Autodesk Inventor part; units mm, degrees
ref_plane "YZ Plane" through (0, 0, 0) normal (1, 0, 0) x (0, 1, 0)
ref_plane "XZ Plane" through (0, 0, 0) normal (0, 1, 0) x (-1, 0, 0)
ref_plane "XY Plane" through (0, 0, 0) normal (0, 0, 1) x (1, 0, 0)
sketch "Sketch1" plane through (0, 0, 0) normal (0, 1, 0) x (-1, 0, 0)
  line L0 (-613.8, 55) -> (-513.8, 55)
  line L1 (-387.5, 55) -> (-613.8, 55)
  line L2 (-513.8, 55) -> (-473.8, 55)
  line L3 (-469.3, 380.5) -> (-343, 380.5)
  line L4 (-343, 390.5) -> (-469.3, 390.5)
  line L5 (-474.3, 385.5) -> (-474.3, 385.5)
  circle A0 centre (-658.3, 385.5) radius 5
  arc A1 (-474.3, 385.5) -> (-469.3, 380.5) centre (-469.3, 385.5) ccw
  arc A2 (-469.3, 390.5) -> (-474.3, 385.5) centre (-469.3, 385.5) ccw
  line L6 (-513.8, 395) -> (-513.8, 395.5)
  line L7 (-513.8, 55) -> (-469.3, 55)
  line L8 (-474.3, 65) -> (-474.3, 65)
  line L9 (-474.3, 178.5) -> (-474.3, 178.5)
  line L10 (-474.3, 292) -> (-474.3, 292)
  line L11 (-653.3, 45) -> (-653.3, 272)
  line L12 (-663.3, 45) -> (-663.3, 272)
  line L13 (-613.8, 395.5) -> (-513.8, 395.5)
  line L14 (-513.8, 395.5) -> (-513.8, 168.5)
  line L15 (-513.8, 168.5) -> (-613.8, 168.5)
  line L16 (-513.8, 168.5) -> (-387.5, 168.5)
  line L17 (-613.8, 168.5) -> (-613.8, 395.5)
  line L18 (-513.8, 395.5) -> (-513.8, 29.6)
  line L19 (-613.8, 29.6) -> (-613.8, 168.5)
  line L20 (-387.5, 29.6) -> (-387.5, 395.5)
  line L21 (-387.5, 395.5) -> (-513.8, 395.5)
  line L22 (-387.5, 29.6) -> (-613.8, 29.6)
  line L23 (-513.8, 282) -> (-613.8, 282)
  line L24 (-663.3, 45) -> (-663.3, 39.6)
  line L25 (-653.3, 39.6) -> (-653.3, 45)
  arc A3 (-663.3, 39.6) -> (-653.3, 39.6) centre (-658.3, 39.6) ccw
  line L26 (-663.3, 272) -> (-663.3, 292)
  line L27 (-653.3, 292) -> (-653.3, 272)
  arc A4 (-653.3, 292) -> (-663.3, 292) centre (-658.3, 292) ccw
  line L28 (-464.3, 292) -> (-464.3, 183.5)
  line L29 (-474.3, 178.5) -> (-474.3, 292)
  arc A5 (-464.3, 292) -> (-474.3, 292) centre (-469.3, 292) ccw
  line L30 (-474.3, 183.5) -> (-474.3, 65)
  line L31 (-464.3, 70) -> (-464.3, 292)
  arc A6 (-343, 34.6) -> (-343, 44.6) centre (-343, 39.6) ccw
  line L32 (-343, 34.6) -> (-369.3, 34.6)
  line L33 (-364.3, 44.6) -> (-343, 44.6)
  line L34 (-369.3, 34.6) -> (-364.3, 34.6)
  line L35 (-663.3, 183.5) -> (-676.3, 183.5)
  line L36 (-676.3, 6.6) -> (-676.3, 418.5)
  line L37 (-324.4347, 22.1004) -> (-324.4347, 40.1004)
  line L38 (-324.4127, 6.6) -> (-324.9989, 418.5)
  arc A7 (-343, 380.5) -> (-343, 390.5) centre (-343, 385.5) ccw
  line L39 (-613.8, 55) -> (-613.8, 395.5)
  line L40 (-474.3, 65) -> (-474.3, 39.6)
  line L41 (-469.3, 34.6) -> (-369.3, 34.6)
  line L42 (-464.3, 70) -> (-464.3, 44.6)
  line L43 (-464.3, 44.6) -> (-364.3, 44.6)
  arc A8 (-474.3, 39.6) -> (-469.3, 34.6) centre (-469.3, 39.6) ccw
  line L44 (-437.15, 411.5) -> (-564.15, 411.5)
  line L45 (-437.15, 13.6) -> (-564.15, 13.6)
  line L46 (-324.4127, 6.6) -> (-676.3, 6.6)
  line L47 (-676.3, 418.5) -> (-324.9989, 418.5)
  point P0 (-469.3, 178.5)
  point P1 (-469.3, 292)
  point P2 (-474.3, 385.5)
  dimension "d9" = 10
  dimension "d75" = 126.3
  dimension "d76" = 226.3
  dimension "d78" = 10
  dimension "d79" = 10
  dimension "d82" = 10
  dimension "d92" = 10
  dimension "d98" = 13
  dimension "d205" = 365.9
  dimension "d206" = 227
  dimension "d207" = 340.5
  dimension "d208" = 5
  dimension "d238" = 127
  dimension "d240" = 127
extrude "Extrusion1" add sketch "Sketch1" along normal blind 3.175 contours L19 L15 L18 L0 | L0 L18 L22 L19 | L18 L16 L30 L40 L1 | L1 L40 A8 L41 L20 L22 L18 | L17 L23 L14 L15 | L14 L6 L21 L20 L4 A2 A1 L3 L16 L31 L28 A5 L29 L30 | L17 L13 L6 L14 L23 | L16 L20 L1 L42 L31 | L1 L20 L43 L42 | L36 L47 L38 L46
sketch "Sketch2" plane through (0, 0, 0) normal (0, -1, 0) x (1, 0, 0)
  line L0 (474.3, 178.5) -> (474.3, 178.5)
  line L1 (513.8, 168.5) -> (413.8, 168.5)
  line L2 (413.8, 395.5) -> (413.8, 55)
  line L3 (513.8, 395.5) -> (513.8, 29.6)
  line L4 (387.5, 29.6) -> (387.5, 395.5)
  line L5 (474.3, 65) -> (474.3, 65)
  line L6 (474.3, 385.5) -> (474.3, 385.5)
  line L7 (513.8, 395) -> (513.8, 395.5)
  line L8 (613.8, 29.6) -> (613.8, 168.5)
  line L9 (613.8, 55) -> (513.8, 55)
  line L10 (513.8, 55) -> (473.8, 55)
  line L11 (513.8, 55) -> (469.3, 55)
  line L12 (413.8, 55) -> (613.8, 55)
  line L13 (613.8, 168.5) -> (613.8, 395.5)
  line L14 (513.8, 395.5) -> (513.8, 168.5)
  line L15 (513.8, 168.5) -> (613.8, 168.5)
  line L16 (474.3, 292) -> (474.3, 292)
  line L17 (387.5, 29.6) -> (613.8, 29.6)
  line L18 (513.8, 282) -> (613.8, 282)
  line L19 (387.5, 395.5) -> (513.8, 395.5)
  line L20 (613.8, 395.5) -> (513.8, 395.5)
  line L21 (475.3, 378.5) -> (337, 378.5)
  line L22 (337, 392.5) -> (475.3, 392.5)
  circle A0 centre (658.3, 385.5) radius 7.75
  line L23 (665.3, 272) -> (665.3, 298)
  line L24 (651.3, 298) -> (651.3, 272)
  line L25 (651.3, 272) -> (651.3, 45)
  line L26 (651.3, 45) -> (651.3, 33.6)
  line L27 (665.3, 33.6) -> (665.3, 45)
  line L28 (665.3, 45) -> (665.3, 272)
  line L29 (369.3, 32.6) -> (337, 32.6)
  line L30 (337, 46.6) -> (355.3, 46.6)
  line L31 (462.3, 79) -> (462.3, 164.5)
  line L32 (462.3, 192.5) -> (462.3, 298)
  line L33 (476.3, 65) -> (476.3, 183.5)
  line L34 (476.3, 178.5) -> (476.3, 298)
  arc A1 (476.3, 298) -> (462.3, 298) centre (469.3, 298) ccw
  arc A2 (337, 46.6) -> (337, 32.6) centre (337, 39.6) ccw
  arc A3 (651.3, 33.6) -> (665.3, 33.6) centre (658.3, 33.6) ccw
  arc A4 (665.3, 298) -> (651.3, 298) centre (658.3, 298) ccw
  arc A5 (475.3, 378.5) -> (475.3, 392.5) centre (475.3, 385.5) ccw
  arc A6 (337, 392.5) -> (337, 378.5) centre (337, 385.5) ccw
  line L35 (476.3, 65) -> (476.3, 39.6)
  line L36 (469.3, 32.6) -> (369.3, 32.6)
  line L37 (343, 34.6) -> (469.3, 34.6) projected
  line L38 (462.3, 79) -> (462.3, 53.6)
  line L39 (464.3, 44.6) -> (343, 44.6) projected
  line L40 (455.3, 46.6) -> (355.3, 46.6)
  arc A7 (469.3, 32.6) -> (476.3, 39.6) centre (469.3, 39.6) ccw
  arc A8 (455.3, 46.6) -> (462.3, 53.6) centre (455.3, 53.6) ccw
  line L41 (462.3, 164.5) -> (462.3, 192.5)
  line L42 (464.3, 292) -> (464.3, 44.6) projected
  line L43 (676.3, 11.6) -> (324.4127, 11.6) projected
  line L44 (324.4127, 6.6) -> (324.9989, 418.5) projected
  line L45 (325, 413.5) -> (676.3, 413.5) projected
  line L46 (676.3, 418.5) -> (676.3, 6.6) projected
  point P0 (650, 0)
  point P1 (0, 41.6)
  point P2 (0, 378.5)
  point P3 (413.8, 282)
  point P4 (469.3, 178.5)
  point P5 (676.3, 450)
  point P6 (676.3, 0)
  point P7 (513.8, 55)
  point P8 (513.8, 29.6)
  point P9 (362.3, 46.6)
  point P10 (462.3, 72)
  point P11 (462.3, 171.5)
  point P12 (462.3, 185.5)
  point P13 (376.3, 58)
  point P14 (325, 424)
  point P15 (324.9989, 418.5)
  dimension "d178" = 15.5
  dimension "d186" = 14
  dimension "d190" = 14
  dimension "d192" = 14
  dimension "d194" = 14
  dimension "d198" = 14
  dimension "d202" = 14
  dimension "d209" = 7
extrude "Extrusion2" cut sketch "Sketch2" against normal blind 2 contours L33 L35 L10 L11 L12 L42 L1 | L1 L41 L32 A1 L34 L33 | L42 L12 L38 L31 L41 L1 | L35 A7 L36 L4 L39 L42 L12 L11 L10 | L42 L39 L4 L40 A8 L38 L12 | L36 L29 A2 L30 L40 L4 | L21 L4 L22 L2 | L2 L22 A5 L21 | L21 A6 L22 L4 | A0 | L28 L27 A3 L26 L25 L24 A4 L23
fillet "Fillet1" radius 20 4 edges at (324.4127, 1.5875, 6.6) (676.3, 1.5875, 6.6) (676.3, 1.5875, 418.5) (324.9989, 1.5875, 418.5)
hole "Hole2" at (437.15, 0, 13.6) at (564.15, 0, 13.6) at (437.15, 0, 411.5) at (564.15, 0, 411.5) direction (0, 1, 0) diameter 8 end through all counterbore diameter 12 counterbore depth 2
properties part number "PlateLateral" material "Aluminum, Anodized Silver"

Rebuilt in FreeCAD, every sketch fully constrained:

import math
import FreeCAD as App
import Part
import Sketcher
Q = App.Units.Quantity


def edges_at(feature, points):
    """Names of the edges that pass closest to the given points."""
    edges = feature.Shape.Edges
    near = lambda p: min(range(len(edges)), key=lambda i: edges[i].distToShape(Part.Vertex(*p))[0])
    return sorted({f"Edge{near(p) + 1}" for p in points})

doc = App.newDocument("Part")
params = doc.addObject("Spreadsheet::Sheet", "Params")
for row, (alias, value) in enumerate([
    ("sketch1_diameter", "10 mm"),
    ("sketch1_width", "126.3 mm"),
    ("sketch1_height", "235 mm"),
    ("sketch1_height2", "176.9 mm"),
    ("sketch1_height3", "143.9 mm"),
    ("pad1_length", "3.175 mm"),
    ("sketch2_radius", "7 mm"),
    ("sketch2_diameter", "15.5 mm"),
    ("sketch2_width", "118.3 mm"),
    ("sketch2_width2", "138.3 mm"),
    ("sketch2_height", "244.4 mm"),
    ("pocket1_length", "2 mm"),
    ("fillet_radius", "20 mm"),
    ("sketch3_diameter", "8 mm"),
    ("hole_diameter", "8 mm"),
    ("hole_cbore_diameter", "12 mm"),
    ("hole_cbore_depth", "2 mm"),
], start=1):
    params.set(f"A{row}", alias)
    params.set(f"B{row}", "=" + value)
    params.setAlias(f"B{row}", alias)

body = doc.addObject("PartDesign::Body", "Body")

# Sketch on XZ plane
sketch1 = doc.addObject("Sketcher::SketchObject", "Sketch")
body.addObject(sketch1)
sketch1.AttachmentSupport = (doc.XZ_Plane, [""])
sketch1.MapMode = "FlatFace"
sketch1.addGeometry(Part.LineSegment(App.Vector(676, 418, 0), App.Vector(676, 184, 0)), False)
sketch1.addGeometry(Part.LineSegment(App.Vector(676, 184, 0), App.Vector(676, 7, 0)), False)
sketch1.addGeometry(Part.LineSegment(App.Vector(676, 7, 0), App.Vector(324, 7, 0)), False)
sketch1.addGeometry(Part.LineSegment(App.Vector(324, 7, 0), App.Vector(325, 418, 0)), False)
sketch1.addGeometry(Part.LineSegment(App.Vector(325, 418, 0), App.Vector(676, 418, 0)), False)
sketch1.addGeometry(Part.ArcOfCircle(Part.Circle(App.Vector(658, 40, 0), App.Vector(0, 0, 1), 5), math.radians(180), math.radians(360)), False)
sketch1.addGeometry(Part.LineSegment(App.Vector(663, 40, 0), App.Vector(663, 184, 0)), False)
sketch1.addGeometry(Part.LineSegment(App.Vector(663, 184, 0), App.Vector(663, 292, 0)), False)
sketch1.addGeometry(Part.ArcOfCircle(Part.Circle(App.Vector(658, 292, 0), App.Vector(0, 0, 1), 5), math.radians(0), math.radians(180)), False)
sketch1.addGeometry(Part.LineSegment(App.Vector(653, 292, 0), App.Vector(653, 40, 0)), False)
sketch1.addGeometry(Part.Circle(App.Vector(658, 386, 0), App.Vector(0, 0, 1), 5), False)
sketch1.addGeometry(Part.ArcOfCircle(Part.Circle(App.Vector(469, 40, 0), App.Vector(0, 0, 1), 5), math.radians(-90), math.radians(0)), False)
sketch1.addGeometry(Part.LineSegment(App.Vector(474, 40, 0), App.Vector(474, 292, 0)), False)
sketch1.addGeometry(Part.ArcOfCircle(Part.Circle(App.Vector(469, 292, 0), App.Vector(0, 0, 1), 5), math.radians(0), math.radians(180)), False)
sketch1.addGeometry(Part.LineSegment(App.Vector(464, 292, 0), App.Vector(464, 45, 0)), False)
sketch1.addGeometry(Part.LineSegment(App.Vector(464, 45, 0), App.Vector(343, 45, 0)), False)
sketch1.addGeometry(Part.ArcOfCircle(Part.Circle(App.Vector(343, 40, 0), App.Vector(0, 0, 1), 5), math.radians(90), math.radians(270)), False)
sketch1.addGeometry(Part.LineSegment(App.Vector(343, 35, 0), App.Vector(469, 35, 0)), False)
sketch1.addGeometry(Part.LineSegment(App.Vector(343, 380, 0), App.Vector(469, 380, 0)), False)
sketch1.addGeometry(Part.ArcOfCircle(Part.Circle(App.Vector(469, 386, 0), App.Vector(0, 0, 1), 5), math.radians(-90), math.radians(90)), False)
sketch1.addGeometry(Part.LineSegment(App.Vector(469, 390, 0), App.Vector(343, 390, 0)), False)
sketch1.addGeometry(Part.ArcOfCircle(Part.Circle(App.Vector(343, 386, 0), App.Vector(0, 0, 1), 5), math.radians(90), math.radians(270)), False)
sketch1.addConstraint(Sketcher.Constraint("Coincident", 0, 2, 1, 1))
sketch1.addConstraint(Sketcher.Constraint("Coincident", 1, 2, 2, 1))
sketch1.addConstraint(Sketcher.Constraint("Coincident", 2, 2, 3, 1))
sketch1.addConstraint(Sketcher.Constraint("Coincident", 3, 2, 4, 1))
sketch1.addConstraint(Sketcher.Constraint("Coincident", 4, 2, 0, 1))
sketch1.addConstraint(Sketcher.Constraint("Tangent", 5, 2, 6, 1))
sketch1.addConstraint(Sketcher.Constraint("Coincident", 6, 2, 7, 1))
sketch1.addConstraint(Sketcher.Constraint("Tangent", 7, 2, 8, 1))
sketch1.addConstraint(Sketcher.Constraint("Tangent", 8, 2, 9, 1))
sketch1.addConstraint(Sketcher.Constraint("Tangent", 9, 2, 5, 1))
sketch1.addConstraint(Sketcher.Constraint("Tangent", 11, 2, 12, 1))
sketch1.addConstraint(Sketcher.Constraint("Tangent", 12, 2, 13, 1))
sketch1.addConstraint(Sketcher.Constraint("Tangent", 13, 2, 14, 1))
sketch1.addConstraint(Sketcher.Constraint("Coincident", 14, 2, 15, 1))
sketch1.addConstraint(Sketcher.Constraint("Tangent", 15, 2, 16, 1))
sketch1.addConstraint(Sketcher.Constraint("Tangent", 16, 2, 17, 1))
sketch1.addConstraint(Sketcher.Constraint("Tangent", 17, 2, 11, 1))
sketch1.addConstraint(Sketcher.Constraint("Tangent", 18, 2, 19, 1))
sketch1.addConstraint(Sketcher.Constraint("Tangent", 19, 2, 20, 1))
sketch1.addConstraint(Sketcher.Constraint("Tangent", 20, 2, 21, 1))
sketch1.addConstraint(Sketcher.Constraint("Tangent", 21, 2, 18, 1))
sketch1.addConstraint(Sketcher.Constraint("Vertical", 0))
sketch1.addConstraint(Sketcher.Constraint("Vertical", 1))
sketch1.addConstraint(Sketcher.Constraint("Horizontal", 2))
sketch1.addConstraint(Sketcher.Constraint("Horizontal", 4))
sketch1.addConstraint(Sketcher.Constraint("Vertical", 6))
sketch1.addConstraint(Sketcher.Constraint("Vertical", 7))
sketch1.addConstraint(Sketcher.Constraint("Vertical", 9))
sketch1.addConstraint(Sketcher.Constraint("Vertical", 12))
sketch1.addConstraint(Sketcher.Constraint("Vertical", 14))
sketch1.addConstraint(Sketcher.Constraint("Horizontal", 15))
sketch1.addConstraint(Sketcher.Constraint("Horizontal", 17))
sketch1.addConstraint(Sketcher.Constraint("Horizontal", 18))
sketch1.addConstraint(Sketcher.Constraint("Horizontal", 20))
sketch1.addConstraint(Sketcher.Constraint("Equal", 8, 10))
sketch1.addConstraint(Sketcher.Constraint("Equal", 10, 11))
sketch1.addConstraint(Sketcher.Constraint("Equal", 11, 13))
sketch1.addConstraint(Sketcher.Constraint("Equal", 13, 16))
sketch1.addConstraint(Sketcher.Constraint("Equal", 16, 19))
sketch1.addConstraint(Sketcher.Constraint("Horizontal", 5, 3, 11, 3))
sketch1.addConstraint(Sketcher.Constraint("Horizontal", 8, 3, 13, 3))
sketch1.addConstraint(Sketcher.Constraint("Horizontal", 10, 3, 19, 3))
sketch1.addConstraint(Sketcher.Constraint("Horizontal", 0, 2, 6, 2))
sketch1.addConstraint(Sketcher.Constraint("Vertical", 8, 3, 10, 3))
sketch1.addConstraint(Sketcher.Constraint("Vertical", 13, 3, 19, 3))
sketch1.addConstraint(Sketcher.Constraint("Vertical", 16, 3, 21, 3))
sketch1.addConstraint(Sketcher.Constraint("Diameter", 10, Q("10 mm")))
sketch1.addConstraint(Sketcher.Constraint("DistanceX", 17, 1, 17, 2, Q("126.3 mm")))
sketch1.addConstraint(Sketcher.Constraint("DistanceX", 5, 2, 1, 2, Q("13 mm")))
sketch1.addConstraint(Sketcher.Constraint("DistanceY", 0, 2, 0, 1, Q("235 mm")))
sketch1.addConstraint(Sketcher.Constraint("DistanceY", 1, 2, 1, 1, Q("176.9 mm")))
sketch1.addConstraint(Sketcher.Constraint("DistanceY", 6, 1, 6, 2, Q("143.9 mm")))
sketch1.addConstraint(Sketcher.Constraint("DistanceY", 7, 1, 7, 2, Q("108.5 mm")))
sketch1.addConstraint(Sketcher.Constraint("DistanceY", -1, 1, 8, 3, Q("292 mm")))
sketch1.addConstraint(Sketcher.Constraint("DistanceX", -1, 1, 16, 3, Q("343 mm")))
sketch1.addConstraint(Sketcher.Constraint("DistanceX", 11, 3, 5, 3, Q("189 mm")))
sketch1.addConstraint(Sketcher.Constraint("DistanceY", 0, 2, 10, 3, Q("202 mm")))
sketch1.addConstraint(Sketcher.Constraint("DistanceX", 4, 1, 4, 2, Q("351.301 mm")))
sketch1.addConstraint(Sketcher.Constraint("DistanceX", 2, 2, 2, 1, Q("351.8873 mm")))
sketch1.setExpression("Constraints[46]", "Params.sketch1_diameter")
sketch1.setExpression("Constraints[47]", "Params.sketch1_width")
sketch1.setExpression("Constraints[49]", "Params.sketch1_height")
sketch1.setExpression("Constraints[50]", "Params.sketch1_height2")
sketch1.setExpression("Constraints[51]", "Params.sketch1_height3")
pad1 = doc.addObject("PartDesign::Pad", "Pad")
body.addObject(pad1)
pad1.Profile = sketch1
pad1.setExpression("Length", "Params.pad1_length")
pad1.Reversed = True

# Sketch on XZ plane
sketch2 = doc.addObject("Sketcher::SketchObject", "Sketch001")
body.addObject(sketch2)
sketch2.AttachmentSupport = (doc.XZ_Plane, [""])
sketch2.MapMode = "FlatFace"
sketch2.addGeometry(Part.ArcOfCircle(Part.Circle(App.Vector(469, 298, 0), App.Vector(0, 0, 1), 7), math.radians(0), math.radians(180)), False)
sketch2.addGeometry(Part.LineSegment(App.Vector(462, 298, 0), App.Vector(462, 54, 0)), False)
sketch2.addGeometry(Part.ArcOfCircle(Part.Circle(App.Vector(455, 54, 0), App.Vector(0, 0, 1), 7), math.radians(-90), math.radians(0)), False)
sketch2.addGeometry(Part.LineSegment(App.Vector(455, 47, 0), App.Vector(337, 47, 0)), False)
sketch2.addGeometry(Part.ArcOfCircle(Part.Circle(App.Vector(337, 40, 0), App.Vector(0, 0, 1), 7), math.radians(90), math.radians(270)), False)
sketch2.addGeometry(Part.LineSegment(App.Vector(337, 33, 0), App.Vector(469, 33, 0)), False)
sketch2.addGeometry(Part.ArcOfCircle(Part.Circle(App.Vector(469, 40, 0), App.Vector(0, 0, 1), 7), math.radians(-90), math.radians(0)), False)
sketch2.addGeometry(Part.LineSegment(App.Vector(476, 40, 0), App.Vector(476, 298, 0)), False)
sketch2.addGeometry(Part.ArcOfCircle(Part.Circle(App.Vector(475, 386, 0), App.Vector(0, 0, 1), 7), math.radians(-90), math.radians(90)), False)
sketch2.addGeometry(Part.LineSegment(App.Vector(475, 392, 0), App.Vector(337, 392, 0)), False)
sketch2.addGeometry(Part.ArcOfCircle(Part.Circle(App.Vector(337, 386, 0), App.Vector(0, 0, 1), 7), math.radians(90), math.radians(270)), False)
sketch2.addGeometry(Part.LineSegment(App.Vector(337, 378, 0), App.Vector(475, 378, 0)), False)
sketch2.addGeometry(Part.Circle(App.Vector(658, 386, 0), App.Vector(0, 0, 1), 8), False)
sketch2.addGeometry(Part.LineSegment(App.Vector(665, 34, 0), App.Vector(665, 298, 0)), False)
sketch2.addGeometry(Part.ArcOfCircle(Part.Circle(App.Vector(658, 298, 0), App.Vector(0, 0, 1), 7), math.radians(0), math.radians(180)), False)
sketch2.addGeometry(Part.LineSegment(App.Vector(651, 298, 0), App.Vector(651, 34, 0)), False)
sketch2.addGeometry(Part.ArcOfCircle(Part.Circle(App.Vector(658, 34, 0), App.Vector(0, 0, 1), 7), math.radians(180), math.radians(360)), False)
sketch2.addConstraint(Sketcher.Constraint("Tangent", 0, 2, 1, 1))
sketch2.addConstraint(Sketcher.Constraint("Tangent", 1, 2, 2, 2))
sketch2.addConstraint(Sketcher.Constraint("Tangent", 2, 1, 3, 1))
sketch2.addConstraint(Sketcher.Constraint("Tangent", 3, 2, 4, 1))
sketch2.addConstraint(Sketcher.Constraint("Tangent", 4, 2, 5, 1))
sketch2.addConstraint(Sketcher.Constraint("Tangent", 5, 2, 6, 1))
sketch2.addConstraint(Sketcher.Constraint("Tangent", 6, 2, 7, 1))
sketch2.addConstraint(Sketcher.Constraint("Tangent", 7, 2, 0, 1))
sketch2.addConstraint(Sketcher.Constraint("Tangent", 8, 2, 9, 1))
sketch2.addConstraint(Sketcher.Constraint("Tangent", 9, 2, 10, 1))
sketch2.addConstraint(Sketcher.Constraint("Tangent", 10, 2, 11, 1))
sketch2.addConstraint(Sketcher.Constraint("Tangent", 11, 2, 8, 1))
sketch2.addConstraint(Sketcher.Constraint("Tangent", 13, 2, 14, 1))
sketch2.addConstraint(Sketcher.Constraint("Tangent", 14, 2, 15, 1))
sketch2.addConstraint(Sketcher.Constraint("Tangent", 15, 2, 16, 1))
sketch2.addConstraint(Sketcher.Constraint("Tangent", 16, 2, 13, 1))
sketch2.addConstraint(Sketcher.Constraint("Vertical", 1))
sketch2.addConstraint(Sketcher.Constraint("Horizontal", 3))
sketch2.addConstraint(Sketcher.Constraint("Horizontal", 5))
sketch2.addConstraint(Sketcher.Constraint("Vertical", 7))
sketch2.addConstraint(Sketcher.Constraint("Horizontal", 9))
sketch2.addConstraint(Sketcher.Constraint("Horizontal", 11))
sketch2.addConstraint(Sketcher.Constraint("Vertical", 13))
sketch2.addConstraint(Sketcher.Constraint("Vertical", 15))
sketch2.addConstraint(Sketcher.Constraint("Equal", 0, 2))
sketch2.addConstraint(Sketcher.Constraint("Equal", 2, 4))
sketch2.addConstraint(Sketcher.Constraint("Equal", 4, 6))
sketch2.addConstraint(Sketcher.Constraint("Equal", 6, 8))
sketch2.addConstraint(Sketcher.Constraint("Equal", 10, 14))
sketch2.addConstraint(Sketcher.Constraint("Horizontal", 10, 3, 12, 3))
sketch2.addConstraint(Sketcher.Constraint("Horizontal", 0, 3, 14, 3))
sketch2.addConstraint(Sketcher.Constraint("Vertical", 4, 3, 10, 3))
sketch2.addConstraint(Sketcher.Constraint("Vertical", 12, 3, 14, 3))
sketch2.addConstraint(Sketcher.Constraint("Radius", 0, Q("7 mm")))
sketch2.addConstraint(Sketcher.Constraint("Diameter", 12, Q("15.5 mm")))
sketch2.addConstraint(Sketcher.Constraint("DistanceX", 3, 2, 3, 1, Q("118.3 mm")))
sketch2.addConstraint(Sketcher.Constraint("DistanceX", 9, 2, 9, 1, Q("138.3 mm")))
sketch2.addConstraint(Sketcher.Constraint("DistanceY", 1, 2, 1, 1, Q("244.4 mm")))
sketch2.addConstraint(Sketcher.Constraint("DistanceY", 13, 1, 13, 2, Q("264.4 mm")))
sketch2.addConstraint(Sketcher.Constraint("DistanceY", -1, 1, 0, 3, Q("298 mm")))
sketch2.addConstraint(Sketcher.Constraint("DistanceX", -1, 1, 4, 3, Q("337 mm")))
sketch2.addConstraint(Sketcher.Constraint("DistanceX", 8, 3, 12, 3, Q("183 mm")))
sketch2.addConstraint(Sketcher.Constraint("DistanceY", -1, 1, 8, 3, Q("385.5 mm")))
sketch2.setExpression("Constraints[33]", "Params.sketch2_radius")
sketch2.setExpression("Constraints[34]", "Params.sketch2_diameter")
sketch2.setExpression("Constraints[35]", "Params.sketch2_width")
sketch2.setExpression("Constraints[36]", "Params.sketch2_width2")
sketch2.setExpression("Constraints[37]", "Params.sketch2_height")
pocket1 = doc.addObject("PartDesign::Pocket", "Pocket")
body.addObject(pocket1)
pocket1.Profile = sketch2
pocket1.setExpression("Length", "Params.pocket1_length")
doc.recompute()

fillet = doc.addObject("PartDesign::Fillet", "Fillet")
body.addObject(fillet)
fillet.Base = (pocket1, edges_at(pocket1, [
    (324.413, 1.587, 6.6),
    (676.3, 1.587, 6.6),
    (676.3, 1.587, 418.5),
    (324.999, 1.587, 418.5),
]))
fillet.setExpression("Radius", "Params.fillet_radius")

# Sketch on XZ plane
sketch3 = doc.addObject("Sketcher::SketchObject", "Sketch002")
body.addObject(sketch3)
sketch3.AttachmentSupport = (doc.XZ_Plane, [""])
sketch3.MapMode = "FlatFace"
sketch3.addGeometry(Part.Circle(App.Vector(437.1, 13.6, 0), App.Vector(0, 0, 1), 4), False)
sketch3.addGeometry(Part.Circle(App.Vector(564.1, 13.6, 0), App.Vector(0, 0, 1), 4), False)
sketch3.addGeometry(Part.Circle(App.Vector(437.1, 411.5, 0), App.Vector(0, 0, 1), 4), False)
sketch3.addGeometry(Part.Circle(App.Vector(564.1, 411.5, 0), App.Vector(0, 0, 1), 4), False)
sketch3.addConstraint(Sketcher.Constraint("Equal", 0, 1))
sketch3.addConstraint(Sketcher.Constraint("Equal", 1, 2))
sketch3.addConstraint(Sketcher.Constraint("Equal", 2, 3))
sketch3.addConstraint(Sketcher.Constraint("Horizontal", 0, 3, 1, 3))
sketch3.addConstraint(Sketcher.Constraint("Horizontal", 2, 3, 3, 3))
sketch3.addConstraint(Sketcher.Constraint("Vertical", 0, 3, 2, 3))
sketch3.addConstraint(Sketcher.Constraint("Vertical", 1, 3, 3, 3))
sketch3.addConstraint(Sketcher.Constraint("Diameter", 0, Q("8 mm")))
sketch3.addConstraint(Sketcher.Constraint("DistanceX", 0, 3, 1, 3, Q("127 mm")))
sketch3.addConstraint(Sketcher.Constraint("DistanceY", -1, 1, 0, 3, Q("13.6 mm")))
sketch3.addConstraint(Sketcher.Constraint("DistanceY", -1, 1, 2, 3, Q("411.5 mm")))
sketch3.addConstraint(Sketcher.Constraint("DistanceX", -1, 1, 0, 3, Q("437.15 mm")))
sketch3.setExpression("Constraints[7]", "Params.sketch3_diameter")
doc.recompute()
hole = doc.addObject("PartDesign::Hole", "Hole")
body.addObject(hole)
hole.Profile = sketch3
hole.ThreadType = "None"
hole.setExpression("Diameter", "Params.hole_diameter")
hole.DepthType = "ThroughAll"
hole.HoleCutType = "Counterbore"
hole.setExpression("HoleCutDiameter", "Params.hole_cbore_diameter")
hole.setExpression("HoleCutDepth", "Params.hole_cbore_depth")

doc.recompute()
